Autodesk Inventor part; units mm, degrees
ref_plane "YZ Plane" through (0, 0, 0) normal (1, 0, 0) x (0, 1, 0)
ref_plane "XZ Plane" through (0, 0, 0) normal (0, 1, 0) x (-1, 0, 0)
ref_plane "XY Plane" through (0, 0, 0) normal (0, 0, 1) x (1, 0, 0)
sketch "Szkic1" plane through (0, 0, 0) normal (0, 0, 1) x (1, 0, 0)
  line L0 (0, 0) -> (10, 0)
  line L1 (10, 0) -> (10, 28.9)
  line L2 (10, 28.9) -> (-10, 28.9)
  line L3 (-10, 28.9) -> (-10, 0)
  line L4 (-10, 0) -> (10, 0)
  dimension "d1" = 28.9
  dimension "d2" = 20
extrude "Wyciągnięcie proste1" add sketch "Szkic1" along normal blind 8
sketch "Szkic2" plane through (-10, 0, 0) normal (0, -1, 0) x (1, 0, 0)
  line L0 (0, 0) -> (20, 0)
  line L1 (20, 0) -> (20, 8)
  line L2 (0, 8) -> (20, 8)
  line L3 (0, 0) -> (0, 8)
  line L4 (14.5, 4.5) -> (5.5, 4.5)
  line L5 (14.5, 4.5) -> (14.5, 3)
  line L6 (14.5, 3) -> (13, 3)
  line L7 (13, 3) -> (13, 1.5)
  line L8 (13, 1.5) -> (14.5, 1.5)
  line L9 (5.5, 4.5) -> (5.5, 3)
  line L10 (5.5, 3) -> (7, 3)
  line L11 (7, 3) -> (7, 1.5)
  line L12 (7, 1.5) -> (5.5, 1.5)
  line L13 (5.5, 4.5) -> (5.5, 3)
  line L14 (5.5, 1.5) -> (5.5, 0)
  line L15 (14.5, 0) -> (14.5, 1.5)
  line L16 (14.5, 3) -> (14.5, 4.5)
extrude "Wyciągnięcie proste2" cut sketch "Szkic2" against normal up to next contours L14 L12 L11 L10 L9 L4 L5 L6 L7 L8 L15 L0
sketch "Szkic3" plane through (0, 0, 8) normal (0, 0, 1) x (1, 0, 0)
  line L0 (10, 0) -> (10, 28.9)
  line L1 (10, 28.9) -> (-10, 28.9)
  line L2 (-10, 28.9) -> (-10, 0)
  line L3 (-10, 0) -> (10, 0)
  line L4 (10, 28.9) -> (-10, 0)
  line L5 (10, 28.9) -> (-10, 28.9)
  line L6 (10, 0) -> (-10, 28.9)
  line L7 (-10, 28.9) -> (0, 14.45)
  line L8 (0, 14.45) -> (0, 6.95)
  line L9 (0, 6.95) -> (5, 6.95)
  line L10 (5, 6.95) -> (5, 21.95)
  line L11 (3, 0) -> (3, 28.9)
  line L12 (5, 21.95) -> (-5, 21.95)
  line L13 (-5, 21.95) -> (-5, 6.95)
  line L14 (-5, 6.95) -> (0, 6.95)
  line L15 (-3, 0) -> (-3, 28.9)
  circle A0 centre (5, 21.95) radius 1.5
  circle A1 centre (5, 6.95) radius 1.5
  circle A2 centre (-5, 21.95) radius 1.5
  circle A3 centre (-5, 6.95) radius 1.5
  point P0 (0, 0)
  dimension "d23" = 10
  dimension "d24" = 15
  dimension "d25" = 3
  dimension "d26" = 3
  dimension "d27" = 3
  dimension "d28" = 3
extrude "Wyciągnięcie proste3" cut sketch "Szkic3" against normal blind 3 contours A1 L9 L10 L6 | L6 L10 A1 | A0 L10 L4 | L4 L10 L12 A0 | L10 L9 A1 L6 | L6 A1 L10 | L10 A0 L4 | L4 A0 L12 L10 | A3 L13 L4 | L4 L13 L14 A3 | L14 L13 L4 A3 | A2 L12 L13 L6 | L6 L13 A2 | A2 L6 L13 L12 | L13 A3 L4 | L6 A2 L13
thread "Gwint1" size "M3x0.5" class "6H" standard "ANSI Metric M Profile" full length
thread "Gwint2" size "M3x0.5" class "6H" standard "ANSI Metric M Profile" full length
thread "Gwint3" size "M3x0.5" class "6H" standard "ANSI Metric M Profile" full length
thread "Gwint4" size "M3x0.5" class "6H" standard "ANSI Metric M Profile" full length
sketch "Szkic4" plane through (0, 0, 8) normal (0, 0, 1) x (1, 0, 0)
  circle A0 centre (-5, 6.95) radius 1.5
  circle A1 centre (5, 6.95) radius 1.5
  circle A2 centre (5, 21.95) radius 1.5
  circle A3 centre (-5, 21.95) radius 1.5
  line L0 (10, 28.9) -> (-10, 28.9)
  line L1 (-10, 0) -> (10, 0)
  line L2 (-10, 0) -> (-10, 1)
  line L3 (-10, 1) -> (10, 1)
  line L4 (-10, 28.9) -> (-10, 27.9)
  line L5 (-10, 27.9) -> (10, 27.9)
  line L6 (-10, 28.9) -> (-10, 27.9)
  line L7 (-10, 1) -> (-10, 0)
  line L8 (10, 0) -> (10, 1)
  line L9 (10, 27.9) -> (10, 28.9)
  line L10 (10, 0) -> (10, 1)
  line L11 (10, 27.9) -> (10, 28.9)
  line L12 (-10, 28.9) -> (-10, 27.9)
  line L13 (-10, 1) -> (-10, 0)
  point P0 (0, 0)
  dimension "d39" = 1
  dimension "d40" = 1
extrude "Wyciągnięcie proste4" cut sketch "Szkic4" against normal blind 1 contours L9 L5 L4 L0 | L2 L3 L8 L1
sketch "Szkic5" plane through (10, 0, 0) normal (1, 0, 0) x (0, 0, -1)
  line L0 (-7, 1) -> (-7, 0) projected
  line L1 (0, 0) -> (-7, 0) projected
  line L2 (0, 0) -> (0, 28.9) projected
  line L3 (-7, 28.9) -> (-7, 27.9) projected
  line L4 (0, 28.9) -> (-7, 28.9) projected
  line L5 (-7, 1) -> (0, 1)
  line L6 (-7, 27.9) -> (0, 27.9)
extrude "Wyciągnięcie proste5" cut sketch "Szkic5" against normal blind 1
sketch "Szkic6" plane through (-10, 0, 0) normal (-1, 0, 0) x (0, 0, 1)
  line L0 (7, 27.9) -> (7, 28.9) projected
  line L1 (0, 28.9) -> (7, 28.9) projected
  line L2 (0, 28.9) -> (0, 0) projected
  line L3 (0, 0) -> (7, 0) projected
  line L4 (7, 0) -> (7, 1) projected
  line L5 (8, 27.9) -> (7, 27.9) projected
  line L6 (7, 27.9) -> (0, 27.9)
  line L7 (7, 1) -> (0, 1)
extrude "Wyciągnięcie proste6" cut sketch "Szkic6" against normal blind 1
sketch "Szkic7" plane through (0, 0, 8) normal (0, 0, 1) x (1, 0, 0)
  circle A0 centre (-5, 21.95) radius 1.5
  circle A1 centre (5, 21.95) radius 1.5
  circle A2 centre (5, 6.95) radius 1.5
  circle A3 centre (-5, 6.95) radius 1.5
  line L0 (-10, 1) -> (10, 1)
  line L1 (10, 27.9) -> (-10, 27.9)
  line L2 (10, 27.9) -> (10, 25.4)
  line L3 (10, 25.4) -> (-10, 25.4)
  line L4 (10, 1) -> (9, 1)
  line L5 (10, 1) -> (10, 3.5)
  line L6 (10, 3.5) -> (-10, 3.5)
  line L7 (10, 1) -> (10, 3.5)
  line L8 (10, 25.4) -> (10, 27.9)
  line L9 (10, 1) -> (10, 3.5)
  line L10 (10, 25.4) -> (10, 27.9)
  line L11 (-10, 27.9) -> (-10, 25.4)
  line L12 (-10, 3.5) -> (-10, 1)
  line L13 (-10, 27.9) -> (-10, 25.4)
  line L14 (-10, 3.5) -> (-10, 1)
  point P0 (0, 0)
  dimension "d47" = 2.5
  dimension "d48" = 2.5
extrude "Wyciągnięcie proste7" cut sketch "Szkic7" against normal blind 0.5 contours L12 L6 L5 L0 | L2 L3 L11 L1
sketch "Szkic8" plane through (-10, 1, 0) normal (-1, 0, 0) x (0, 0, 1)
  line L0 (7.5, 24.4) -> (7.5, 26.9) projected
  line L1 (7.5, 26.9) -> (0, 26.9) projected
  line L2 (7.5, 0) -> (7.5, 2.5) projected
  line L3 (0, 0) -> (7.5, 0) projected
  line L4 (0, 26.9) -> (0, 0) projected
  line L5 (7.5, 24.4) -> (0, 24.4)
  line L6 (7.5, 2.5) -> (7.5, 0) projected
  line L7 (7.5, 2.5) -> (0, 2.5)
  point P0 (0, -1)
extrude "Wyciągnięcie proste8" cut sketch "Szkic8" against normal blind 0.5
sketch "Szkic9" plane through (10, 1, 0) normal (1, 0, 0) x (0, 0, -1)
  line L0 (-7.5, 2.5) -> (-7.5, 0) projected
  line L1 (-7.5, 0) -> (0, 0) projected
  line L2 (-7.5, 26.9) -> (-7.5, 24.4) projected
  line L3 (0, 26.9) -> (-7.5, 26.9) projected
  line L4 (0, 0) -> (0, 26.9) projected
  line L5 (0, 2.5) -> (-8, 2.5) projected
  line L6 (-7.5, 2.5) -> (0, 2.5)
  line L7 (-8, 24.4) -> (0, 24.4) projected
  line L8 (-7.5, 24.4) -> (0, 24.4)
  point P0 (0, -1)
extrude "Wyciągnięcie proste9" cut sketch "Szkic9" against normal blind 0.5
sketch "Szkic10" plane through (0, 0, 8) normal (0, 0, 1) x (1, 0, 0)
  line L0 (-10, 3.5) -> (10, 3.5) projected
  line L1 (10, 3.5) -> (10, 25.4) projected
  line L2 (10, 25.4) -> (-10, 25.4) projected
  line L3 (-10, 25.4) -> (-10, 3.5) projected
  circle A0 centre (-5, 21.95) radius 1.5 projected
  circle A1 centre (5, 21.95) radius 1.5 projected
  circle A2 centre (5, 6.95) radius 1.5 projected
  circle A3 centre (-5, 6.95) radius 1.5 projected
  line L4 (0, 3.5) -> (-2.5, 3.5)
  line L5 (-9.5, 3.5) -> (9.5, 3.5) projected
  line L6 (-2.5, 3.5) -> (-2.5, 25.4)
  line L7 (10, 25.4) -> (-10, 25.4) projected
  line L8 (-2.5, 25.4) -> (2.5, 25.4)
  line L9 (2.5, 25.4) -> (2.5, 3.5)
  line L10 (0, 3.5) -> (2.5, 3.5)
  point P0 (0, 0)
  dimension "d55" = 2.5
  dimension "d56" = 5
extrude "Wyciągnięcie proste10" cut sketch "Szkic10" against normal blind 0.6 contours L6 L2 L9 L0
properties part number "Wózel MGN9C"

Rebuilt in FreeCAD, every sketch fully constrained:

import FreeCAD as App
import Part
import Sketcher

V = App.Vector
Q = App.Units.Quantity


def add_polygon(sketch, points):
    """Adds a closed chain of lines whose ends are joined by coincident constraints."""
    first, n = sketch.GeometryCount, len(points)
    for a, b in zip(points, points[1:] + points[:1]):
        sketch.addGeometry(Part.LineSegment(App.Vector(*a, 0), App.Vector(*b, 0)), False)
    for i in range(n):
        sketch.addConstraint(Sketcher.Constraint("Coincident", first + i, 2, first + (i + 1) % n, 1))

doc = App.newDocument("Part")
params = doc.addObject("Spreadsheet::Sheet", "Params")
for row, (alias, value) in enumerate([
    ("sketch1_width", "20 mm"),
    ("sketch1_height", "28.9 mm"),
    ("pad1_length", "8 mm"),
    ("sketch2_width", "9 mm"),
    ("sketch2_width2", "1.5 mm"),
    ("sketch3_diameter", "3 mm"),
    ("pocket2_length", "3 mm"),
    ("sketch4_height", "1 mm"),
    ("sketch4_width", "20 mm"),
    ("pocket3_length", "1 mm"),
    ("sketch5_width", "1 mm"),
    ("sketch5_height", "7 mm"),
    ("pocket4_length", "1 mm"),
    ("sketch6_width", "1 mm"),
    ("sketch6_height", "7 mm"),
    ("pocket5_length", "1 mm"),
    ("sketch7_height", "2.5 mm"),
    ("sketch7_width", "20 mm"),
    ("pocket6_length", "0.5 mm"),
    ("sketch8_width", "2.5 mm"),
    ("sketch8_height", "7.5 mm"),
    ("pocket7_length", "0.5 mm"),
    ("sketch9_width", "2.5 mm"),
    ("sketch9_height", "7.5 mm"),
    ("pocket8_length", "0.5 mm"),
    ("sketch10_width", "5 mm"),
    ("sketch10_height", "21.9 mm"),
    ("pocket9_length", "0.6 mm"),
], start=1):
    params.set(f"A{row}", alias)
    params.set(f"B{row}", "=" + value)
    params.setAlias(f"B{row}", alias)

body = doc.addObject("PartDesign::Body", "Body")

sketch1 = body.newObject("Sketcher::SketchObject", "Sketch")
sketch1.AttachmentSupport = (doc.getObject("XY_Plane"), [""])
sketch1.MapMode = "FlatFace"
add_polygon(sketch1, [(-10, 0), (10, 0), (10, 29), (-10, 29)])
sketch1.addConstraint(Sketcher.Constraint("Horizontal", 0))
sketch1.addConstraint(Sketcher.Constraint("Vertical", 1))
sketch1.addConstraint(Sketcher.Constraint("Horizontal", 2))
sketch1.addConstraint(Sketcher.Constraint("Vertical", 3))
sketch1.addConstraint(Sketcher.Constraint("Symmetric", 0, 2, 3, 2, -1, 1))
sketch1.addConstraint(Sketcher.Constraint("DistanceX", 0, 1, 0, 2, Q("20 mm")))
sketch1.addConstraint(Sketcher.Constraint("DistanceY", 1, 1, 1, 2, Q("28.9 mm")))
sketch1.setExpression("Constraints[9]", "Params.sketch1_width")
sketch1.setExpression("Constraints[10]", "Params.sketch1_height")
pad1 = body.newObject("PartDesign::Pad", "Pad")
pad1.Profile = sketch1
pad1.setExpression("Length", "Params.pad1_length")

sketch2 = body.newObject("Sketcher::SketchObject", "Sketch001")
sketch2.AttachmentSupport = (doc.getObject("XZ_Plane"), [""])
sketch2.MapMode = "FlatFace"
add_polygon(sketch2, [(-4.5, 1.5), (-4.5, 0), (4.5, 0), (4.5, 1.5), (3, 1.5), (3, 3), (4.5, 3), (4.5, 4.5), (-4.5, 4.5), (-4.5, 3), (-3, 3), (-3, 1.5)])
sketch2.addConstraint(Sketcher.Constraint("Vertical", 0))
sketch2.addConstraint(Sketcher.Constraint("Horizontal", 1))
sketch2.addConstraint(Sketcher.Constraint("Vertical", 2))
sketch2.addConstraint(Sketcher.Constraint("Horizontal", 3))
sketch2.addConstraint(Sketcher.Constraint("Vertical", 4))
sketch2.addConstraint(Sketcher.Constraint("Horizontal", 5))
sketch2.addConstraint(Sketcher.Constraint("Vertical", 6))
sketch2.addConstraint(Sketcher.Constraint("Horizontal", 7))
sketch2.addConstraint(Sketcher.Constraint("Vertical", 8))
sketch2.addConstraint(Sketcher.Constraint("Horizontal", 9))
sketch2.addConstraint(Sketcher.Constraint("Vertical", 10))
sketch2.addConstraint(Sketcher.Constraint("Horizontal", 11))
sketch2.addConstraint(Sketcher.Constraint("Symmetric", 0, 2, 1, 2, -1, 1))
sketch2.addConstraint(Sketcher.Constraint("Symmetric", 5, 2, 8, 2, -2))
sketch2.addConstraint(Sketcher.Constraint("Symmetric", 3, 2, 10, 2, -2))
sketch2.addConstraint(Sketcher.Constraint("Vertical", 2, 2, 5, 2))
sketch2.addConstraint(Sketcher.Constraint("Equal", 11, 0))
sketch2.addConstraint(Sketcher.Constraint("Equal", 2, 4))
sketch2.addConstraint(Sketcher.Constraint("Equal", 4, 6))
sketch2.addConstraint(Sketcher.Constraint("DistanceX", 1, 1, 1, 2, Q("9 mm")))
sketch2.addConstraint(Sketcher.Constraint("DistanceX", 3, 2, 3, 1, Q("1.5 mm")))
sketch2.setExpression("Constraints[31]", "Params.sketch2_width")
sketch2.setExpression("Constraints[32]", "Params.sketch2_width2")
pocket1 = body.newObject("PartDesign::Pocket", "Pocket")
pocket1.Profile = sketch2
pocket1.Type = "UpToFirst"

sketch3 = body.newObject("Sketcher::SketchObject", "Sketch002")
sketch3.AttachmentSupport = (doc.getObject("XY_Plane"), [""])
sketch3.MapMode = "FlatFace"
sketch3.AttachmentOffset = App.Placement(V(0, 0, 8), App.Rotation())
sketch3.addGeometry(Part.Circle(V(5, 7, 0), V(0, 0, 1), 1.5), False)
sketch3.addGeometry(Part.Circle(V(5, 21.9, 0), V(0, 0, 1), 1.5), False)
sketch3.addGeometry(Part.Circle(V(-5, 7, 0), V(0, 0, 1), 1.5), False)
sketch3.addGeometry(Part.Circle(V(-5, 21.9, 0), V(0, 0, 1), 1.5), False)
sketch3.addConstraint(Sketcher.Constraint("Equal", 0, 1))
sketch3.addConstraint(Sketcher.Constraint("Equal", 1, 2))
sketch3.addConstraint(Sketcher.Constraint("Equal", 2, 3))
sketch3.addConstraint(Sketcher.Constraint("Symmetric", 0, 3, 2, 3, -2))
sketch3.addConstraint(Sketcher.Constraint("Symmetric", 1, 3, 3, 3, -2))
sketch3.addConstraint(Sketcher.Constraint("Vertical", 0, 3, 1, 3))
sketch3.addConstraint(Sketcher.Constraint("Diameter", 0, Q("3 mm")))
sketch3.addConstraint(Sketcher.Constraint("DistanceY", 0, 3, 1, 3, Q("15 mm")))
sketch3.addConstraint(Sketcher.Constraint("DistanceX", 2, 3, 0, 3, Q("10 mm")))
sketch3.addConstraint(Sketcher.Constraint("DistanceY", -1, 1, 0, 3, Q("6.95 mm")))
sketch3.setExpression("Constraints[6]", "Params.sketch3_diameter")
pocket2 = body.newObject("PartDesign::Pocket", "Pocket001")
pocket2.Profile = sketch3
pocket2.setExpression("Length", "Params.pocket2_length")

sketch4 = body.newObject("Sketcher::SketchObject", "Sketch003")
sketch4.AttachmentSupport = (doc.getObject("XY_Plane"), [""])
sketch4.MapMode = "FlatFace"
sketch4.AttachmentOffset = App.Placement(V(0, 0, 8), App.Rotation())
add_polygon(sketch4, [(10, 27.9), (10, 28.9), (-10, 28.9), (-10, 27.9)])
add_polygon(sketch4, [(-10, 1), (-10, 0), (10, 0), (10, 1)])
sketch4.addConstraint(Sketcher.Constraint("Vertical", 0))
sketch4.addConstraint(Sketcher.Constraint("Horizontal", 1))
sketch4.addConstraint(Sketcher.Constraint("Vertical", 2))
sketch4.addConstraint(Sketcher.Constraint("Horizontal", 3))
sketch4.addConstraint(Sketcher.Constraint("Vertical", 4))
sketch4.addConstraint(Sketcher.Constraint("Horizontal", 5))
sketch4.addConstraint(Sketcher.Constraint("Vertical", 6))
sketch4.addConstraint(Sketcher.Constraint("Horizontal", 7))
sketch4.addConstraint(Sketcher.Constraint("Symmetric", 4, 2, 5, 2, -1, 1))
sketch4.addConstraint(Sketcher.Constraint("Vertical", 2, 2, 4, 2))
sketch4.addConstraint(Sketcher.Constraint("Vertical", 3, 2, 5, 2))
sketch4.addConstraint(Sketcher.Constraint("Equal", 2, 4))
sketch4.addConstraint(Sketcher.Constraint("DistanceY", 0, 1, 0, 2, Q("1 mm")))
sketch4.addConstraint(Sketcher.Constraint("DistanceX", 1, 2, 1, 1, Q("20 mm")))
sketch4.addConstraint(Sketcher.Constraint("DistanceY", -1, 1, 0, 2, Q("28.9 mm")))
sketch4.setExpression("Constraints[20]", "Params.sketch4_height")
sketch4.setExpression("Constraints[21]", "Params.sketch4_width")
pocket3 = body.newObject("PartDesign::Pocket", "Pocket002")
pocket3.Profile = sketch4
pocket3.setExpression("Length", "Params.pocket3_length")

sketch5 = body.newObject("Sketcher::SketchObject", "Sketch004")
sketch5.AttachmentSupport = (doc.getObject("YZ_Plane"), [""])
sketch5.MapMode = "FlatFace"
sketch5.AttachmentOffset = App.Placement(V(0, 0, 10), App.Rotation())
add_polygon(sketch5, [(1, 0), (1, 7), (0, 7), (0, 0)])
add_polygon(sketch5, [(27.9, 7), (27.9, 0), (28.9, 0), (28.9, 7)])
sketch5.addConstraint(Sketcher.Constraint("Vertical", 0))
sketch5.addConstraint(Sketcher.Constraint("Horizontal", 1))
sketch5.addConstraint(Sketcher.Constraint("Vertical", 2))
sketch5.addConstraint(Sketcher.Constraint("Horizontal", 3))
sketch5.addConstraint(Sketcher.Constraint("Vertical", 4))
sketch5.addConstraint(Sketcher.Constraint("Horizontal", 5))
sketch5.addConstraint(Sketcher.Constraint("Vertical", 6))
sketch5.addConstraint(Sketcher.Constraint("Horizontal", 7))
sketch5.addConstraint(Sketcher.Constraint("Coincident", 2, 2, -1, 1))
sketch5.addConstraint(Sketcher.Constraint("PointOnObject", 4, 2, -1))
sketch5.addConstraint(Sketcher.Constraint("Horizontal", 1, 2, 6, 2))
sketch5.addConstraint(Sketcher.Constraint("Equal", 3, 5))
sketch5.addConstraint(Sketcher.Constraint("DistanceX", 1, 2, 1, 1, Q("1 mm")))
sketch5.addConstraint(Sketcher.Constraint("DistanceY", 0, 1, 0, 2, Q("7 mm")))
sketch5.addConstraint(Sketcher.Constraint("DistanceX", -1, 1, 4, 2, Q("27.9 mm")))
sketch5.setExpression("Constraints[20]", "Params.sketch5_width")
sketch5.setExpression("Constraints[21]", "Params.sketch5_height")
pocket4 = body.newObject("PartDesign::Pocket", "Pocket003")
pocket4.Profile = sketch5
pocket4.setExpression("Length", "Params.pocket4_length")

sketch6 = body.newObject("Sketcher::SketchObject", "Sketch005")
sketch6.AttachmentSupport = (doc.getObject("YZ_Plane"), [""])
sketch6.MapMode = "FlatFace"
sketch6.AttachmentOffset = App.Placement(V(0, 0, -10), App.Rotation())
add_polygon(sketch6, [(27.9, 0), (27.9, 7), (28.9, 7), (28.9, 0)])
add_polygon(sketch6, [(1, 7), (1, 0), (0, 0), (0, 7)])
sketch6.addConstraint(Sketcher.Constraint("Vertical", 0))
sketch6.addConstraint(Sketcher.Constraint("Horizontal", 1))
sketch6.addConstraint(Sketcher.Constraint("Vertical", 2))
sketch6.addConstraint(Sketcher.Constraint("Horizontal", 3))
sketch6.addConstraint(Sketcher.Constraint("Vertical", 4))
sketch6.addConstraint(Sketcher.Constraint("Horizontal", 5))
sketch6.addConstraint(Sketcher.Constraint("Vertical", 6))
sketch6.addConstraint(Sketcher.Constraint("Horizontal", 7))
sketch6.addConstraint(Sketcher.Constraint("Coincident", 5, 2, -1, 1))
sketch6.addConstraint(Sketcher.Constraint("PointOnObject", 2, 2, -1))
sketch6.addConstraint(Sketcher.Constraint("Horizontal", 1, 2, 6, 2))
sketch6.addConstraint(Sketcher.Constraint("Equal", 3, 5))
sketch6.addConstraint(Sketcher.Constraint("DistanceX", 1, 1, 1, 2, Q("1 mm")))
sketch6.addConstraint(Sketcher.Constraint("DistanceY", 0, 1, 0, 2, Q("7 mm")))
sketch6.addConstraint(Sketcher.Constraint("DistanceX", -1, 1, 0, 2, Q("27.9 mm")))
sketch6.setExpression("Constraints[20]", "Params.sketch6_width")
sketch6.setExpression("Constraints[21]", "Params.sketch6_height")
pocket5 = body.newObject("PartDesign::Pocket", "Pocket004")
pocket5.Profile = sketch6
pocket5.setExpression("Length", "Params.pocket5_length")
pocket5.Reversed = True

sketch7 = body.newObject("Sketcher::SketchObject", "Sketch006")
sketch7.AttachmentSupport = (doc.getObject("XY_Plane"), [""])
sketch7.MapMode = "FlatFace"
sketch7.AttachmentOffset = App.Placement(V(0, 0, 8), App.Rotation())
add_polygon(sketch7, [(-10, 3.5), (-10, 1), (10, 1), (10, 3.5)])
add_polygon(sketch7, [(10, 25.4), (10, 27.9), (-10, 27.9), (-10, 25.4)])
sketch7.addConstraint(Sketcher.Constraint("Vertical", 0))
sketch7.addConstraint(Sketcher.Constraint("Horizontal", 1))
sketch7.addConstraint(Sketcher.Constraint("Vertical", 2))
sketch7.addConstraint(Sketcher.Constraint("Horizontal", 3))
sketch7.addConstraint(Sketcher.Constraint("Vertical", 4))
sketch7.addConstraint(Sketcher.Constraint("Horizontal", 5))
sketch7.addConstraint(Sketcher.Constraint("Vertical", 6))
sketch7.addConstraint(Sketcher.Constraint("Horizontal", 7))
sketch7.addConstraint(Sketcher.Constraint("Vertical", 2, 2, 4, 2))
sketch7.addConstraint(Sketcher.Constraint("Vertical", 3, 2, 5, 2))
sketch7.addConstraint(Sketcher.Constraint("Equal", 2, 4))
sketch7.addConstraint(Sketcher.Constraint("DistanceY", 0, 2, 0, 1, Q("2.5 mm")))
sketch7.addConstraint(Sketcher.Constraint("DistanceX", 1, 1, 1, 2, Q("20 mm")))
sketch7.addConstraint(Sketcher.Constraint("DistanceX", 0, 2, -1, 1, Q("10 mm")))
sketch7.addConstraint(Sketcher.Constraint("DistanceY", -1, 1, 0, 2, Q("1 mm")))
sketch7.addConstraint(Sketcher.Constraint("DistanceY", -1, 1, 4, 2, Q("27.9 mm")))
sketch7.setExpression("Constraints[19]", "Params.sketch7_height")
sketch7.setExpression("Constraints[20]", "Params.sketch7_width")
pocket6 = body.newObject("PartDesign::Pocket", "Pocket005")
pocket6.Profile = sketch7
pocket6.setExpression("Length", "Params.pocket6_length")

sketch8 = body.newObject("Sketcher::SketchObject", "Sketch007")
sketch8.AttachmentSupport = (doc.getObject("YZ_Plane"), [""])
sketch8.MapMode = "FlatFace"
sketch8.AttachmentOffset = App.Placement(V(0, 0, -10), App.Rotation())
add_polygon(sketch8, [(25.4, 0), (25.4, 7.5), (27.9, 7.5), (27.9, 0)])
add_polygon(sketch8, [(3.5, 7.5), (3.5, 0), (1, 0), (1, 7.5)])
sketch8.addConstraint(Sketcher.Constraint("Vertical", 0))
sketch8.addConstraint(Sketcher.Constraint("Horizontal", 1))
sketch8.addConstraint(Sketcher.Constraint("Vertical", 2))
sketch8.addConstraint(Sketcher.Constraint("Horizontal", 3))
sketch8.addConstraint(Sketcher.Constraint("Vertical", 4))
sketch8.addConstraint(Sketcher.Constraint("Horizontal", 5))
sketch8.addConstraint(Sketcher.Constraint("Vertical", 6))
sketch8.addConstraint(Sketcher.Constraint("Horizontal", 7))
sketch8.addConstraint(Sketcher.Constraint("PointOnObject", 2, 2, -1))
sketch8.addConstraint(Sketcher.Constraint("PointOnObject", 4, 2, -1))
sketch8.addConstraint(Sketcher.Constraint("Horizontal", 1, 2, 6, 2))
sketch8.addConstraint(Sketcher.Constraint("Equal", 3, 5))
sketch8.addConstraint(Sketcher.Constraint("DistanceX", 1, 1, 1, 2, Q("2.5 mm")))
sketch8.addConstraint(Sketcher.Constraint("DistanceY", 0, 1, 0, 2, Q("7.5 mm")))
sketch8.addConstraint(Sketcher.Constraint("DistanceX", -1, 1, 5, 2, Q("1 mm")))
sketch8.addConstraint(Sketcher.Constraint("DistanceX", -1, 1, 0, 2, Q("25.4 mm")))
sketch8.setExpression("Constraints[20]", "Params.sketch8_width")
sketch8.setExpression("Constraints[21]", "Params.sketch8_height")
pocket7 = body.newObject("PartDesign::Pocket", "Pocket006")
pocket7.Profile = sketch8
pocket7.setExpression("Length", "Params.pocket7_length")
pocket7.Reversed = True

sketch9 = body.newObject("Sketcher::SketchObject", "Sketch008")
sketch9.AttachmentSupport = (doc.getObject("YZ_Plane"), [""])
sketch9.MapMode = "FlatFace"
sketch9.AttachmentOffset = App.Placement(V(0, 0, 10), App.Rotation())
add_polygon(sketch9, [(3.5, 0), (3.5, 7.5), (1, 7.5), (1, 0)])
add_polygon(sketch9, [(25.4, 7.5), (25.4, 0), (27.9, 0), (27.9, 7.5)])
sketch9.addConstraint(Sketcher.Constraint("Vertical", 0))
sketch9.addConstraint(Sketcher.Constraint("Horizontal", 1))
sketch9.addConstraint(Sketcher.Constraint("Vertical", 2))
sketch9.addConstraint(Sketcher.Constraint("Horizontal", 3))
sketch9.addConstraint(Sketcher.Constraint("Vertical", 4))
sketch9.addConstraint(Sketcher.Constraint("Horizontal", 5))
sketch9.addConstraint(Sketcher.Constraint("Vertical", 6))
sketch9.addConstraint(Sketcher.Constraint("Horizontal", 7))
sketch9.addConstraint(Sketcher.Constraint("PointOnObject", 2, 2, -1))
sketch9.addConstraint(Sketcher.Constraint("PointOnObject", 4, 2, -1))
sketch9.addConstraint(Sketcher.Constraint("Horizontal", 1, 2, 6, 2))
sketch9.addConstraint(Sketcher.Constraint("Equal", 3, 5))
sketch9.addConstraint(Sketcher.Constraint("DistanceX", 1, 2, 1, 1, Q("2.5 mm")))
sketch9.addConstraint(Sketcher.Constraint("DistanceY", 0, 1, 0, 2, Q("7.5 mm")))
sketch9.addConstraint(Sketcher.Constraint("DistanceX", -1, 1, 1, 2, Q("1 mm")))
sketch9.addConstraint(Sketcher.Constraint("DistanceX", -1, 1, 4, 2, Q("25.4 mm")))
sketch9.setExpression("Constraints[20]", "Params.sketch9_width")
sketch9.setExpression("Constraints[21]", "Params.sketch9_height")
pocket8 = body.newObject("PartDesign::Pocket", "Pocket007")
pocket8.Profile = sketch9
pocket8.setExpression("Length", "Params.pocket8_length")

sketch10 = body.newObject("Sketcher::SketchObject", "Sketch009")
sketch10.AttachmentSupport = (doc.getObject("XY_Plane"), [""])
sketch10.MapMode = "FlatFace"
sketch10.AttachmentOffset = App.Placement(V(0, 0, 8), App.Rotation())
add_polygon(sketch10, [(-2, 25), (-2, 4), (2, 4), (2, 25)])
sketch10.addConstraint(Sketcher.Constraint("Vertical", 0))
sketch10.addConstraint(Sketcher.Constraint("Horizontal", 1))
sketch10.addConstraint(Sketcher.Constraint("Vertical", 2))
sketch10.addConstraint(Sketcher.Constraint("Horizontal", 3))
sketch10.addConstraint(Sketcher.Constraint("DistanceX", 1, 1, 1, 2, Q("5 mm")))
sketch10.addConstraint(Sketcher.Constraint("DistanceX", 0, 2, -1, 1, Q("2.5 mm")))
sketch10.addConstraint(Sketcher.Constraint("DistanceY", 0, 2, 0, 1, Q("21.9 mm")))
sketch10.addConstraint(Sketcher.Constraint("DistanceY", -1, 1, 0, 2, Q("3.5 mm")))
sketch10.setExpression("Constraints[8]", "Params.sketch10_width")
sketch10.setExpression("Constraints[10]", "Params.sketch10_height")
pocket9 = body.newObject("PartDesign::Pocket", "Pocket008")
pocket9.Profile = sketch10
pocket9.setExpression("Length", "Params.pocket9_length")

doc.recompute()
